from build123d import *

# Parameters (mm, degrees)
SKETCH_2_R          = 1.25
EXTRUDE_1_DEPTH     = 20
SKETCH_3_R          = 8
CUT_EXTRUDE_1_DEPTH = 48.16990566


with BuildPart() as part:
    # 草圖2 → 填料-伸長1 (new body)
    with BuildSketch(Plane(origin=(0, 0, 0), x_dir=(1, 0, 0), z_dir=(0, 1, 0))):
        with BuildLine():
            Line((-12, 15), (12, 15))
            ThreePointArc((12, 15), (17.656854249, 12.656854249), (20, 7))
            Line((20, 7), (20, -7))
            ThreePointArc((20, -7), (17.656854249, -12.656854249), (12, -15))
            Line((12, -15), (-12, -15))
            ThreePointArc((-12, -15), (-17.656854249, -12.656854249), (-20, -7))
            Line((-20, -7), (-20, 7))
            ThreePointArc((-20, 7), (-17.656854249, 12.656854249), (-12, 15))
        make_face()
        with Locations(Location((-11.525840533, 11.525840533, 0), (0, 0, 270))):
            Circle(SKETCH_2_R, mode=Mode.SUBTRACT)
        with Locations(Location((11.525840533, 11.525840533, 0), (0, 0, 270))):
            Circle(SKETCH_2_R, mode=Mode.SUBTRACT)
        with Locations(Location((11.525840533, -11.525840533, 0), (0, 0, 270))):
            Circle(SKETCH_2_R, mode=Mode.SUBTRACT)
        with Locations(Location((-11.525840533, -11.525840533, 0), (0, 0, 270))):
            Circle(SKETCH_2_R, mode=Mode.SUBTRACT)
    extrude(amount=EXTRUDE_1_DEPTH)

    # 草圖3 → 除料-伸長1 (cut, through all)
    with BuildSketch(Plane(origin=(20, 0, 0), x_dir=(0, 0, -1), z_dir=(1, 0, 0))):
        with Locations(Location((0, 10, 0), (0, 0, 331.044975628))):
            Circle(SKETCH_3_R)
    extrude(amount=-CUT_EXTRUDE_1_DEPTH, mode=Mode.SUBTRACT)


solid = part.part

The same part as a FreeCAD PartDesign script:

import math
import FreeCAD as App
import Part
import Sketcher

V = App.Vector

doc = App.newDocument("Part")
body = doc.addObject("PartDesign::Body", "Body")

# Sketch on XZ plane
sketch1 = body.newObject("Sketcher::SketchObject", "Sketch")
sketch1.AttachmentSupport = (doc.getObject("XZ_Plane"), [""])
sketch1.MapMode = "FlatFace"
sketch1.addGeometry([
    Part.LineSegment(V(12, -15, 0), V(-12, -15, 0)),  # 0
    Part.ArcOfCircle(Part.Circle(V(-12, -7, 0), V(0, 0, 1), 8), math.radians(-180), math.radians(-90)),  # 1
    Part.LineSegment(V(-20, -7, 0), V(-20, 7, 0)),  # 2
    Part.ArcOfCircle(Part.Circle(V(-12, 7, 0), V(0, 0, 1), 8), math.radians(90), math.radians(180)),  # 3
    Part.LineSegment(V(-12, 15, 0), V(12, 15, 0)),  # 4
    Part.ArcOfCircle(Part.Circle(V(12, 7, 0), V(0, 0, 1), 8), math.radians(0), math.radians(90)),  # 5
    Part.LineSegment(V(20, 7, 0), V(20, -7, 0)),  # 6
    Part.ArcOfCircle(Part.Circle(V(12, -7, 0), V(0, 0, 1), 8), math.radians(-90), math.radians(0)),  # 7
    Part.Circle(V(11.5, 11.5, 0), V(0, 0, 1), 1.2),  # 8
    Part.Circle(V(-11.5, 11.5, 0), V(0, 0, 1), 1.2),  # 9
    Part.Circle(V(11.5, -11.5, 0), V(0, 0, 1), 1.2),  # 10
    Part.Circle(V(-11.5, -11.5, 0), V(0, 0, 1), 1.2),  # 11
], False)
sketch1.addConstraint([
    Sketcher.Constraint("Tangent", 0, 2, 1, 2),
    Sketcher.Constraint("Tangent", 1, 1, 2, 1),
    Sketcher.Constraint("Tangent", 2, 2, 3, 2),
    Sketcher.Constraint("Tangent", 3, 1, 4, 1),
    Sketcher.Constraint("Tangent", 4, 2, 5, 2),
    Sketcher.Constraint("Tangent", 5, 1, 6, 1),
    Sketcher.Constraint("Tangent", 6, 2, 7, 2),
    Sketcher.Constraint("Tangent", 7, 1, 0, 1),
    Sketcher.Constraint("Horizontal", 0),
    Sketcher.Constraint("Vertical", 2),
    Sketcher.Constraint("Horizontal", 4),
    Sketcher.Constraint("Vertical", 6),
    Sketcher.Constraint("Equal", 1, 3),
    Sketcher.Constraint("Equal", 3, 5),
    Sketcher.Constraint("Equal", 5, 7),
    Sketcher.Constraint("Equal", 8, 9),
    Sketcher.Constraint("Equal", 9, 10),
    Sketcher.Constraint("Equal", 10, 11),
    Sketcher.Constraint("Symmetric", 1, 3, 5, 3, -1, 1),
    Sketcher.Constraint("Symmetric", 9, 3, 10, 3, -1, 1),
    Sketcher.Constraint("Symmetric", 8, 3, 11, 3, -1, 1),
    Sketcher.Constraint("Symmetric", 8, 3, 9, 3, -2),
    Sketcher.Constraint("Radius", 1, 8.0),
    Sketcher.Constraint("Diameter", 8, 2.5),
    Sketcher.Constraint("DistanceX", 0, 2, 0, 1, 24.0),
    Sketcher.Constraint("DistanceY", 2, 1, 2, 2, 14.0),
    Sketcher.Constraint("DistanceX", -1, 1, 8, 3, 11.525841),
    Sketcher.Constraint("DistanceY", -1, 1, 8, 3, 11.525841),
])
pad1 = body.newObject("PartDesign::Pad", "Pad")
pad1.Profile = sketch1
pad1.Length = 20
pad1.Reversed = True

# Sketch on YZ plane
sketch2 = body.newObject("Sketcher::SketchObject", "Sketch001")
sketch2.AttachmentSupport = (doc.getObject("YZ_Plane"), [""])
sketch2.MapMode = "FlatFace"
sketch2.AttachmentOffset = App.Placement(V(0, 0, 20), App.Rotation())
sketch2.addGeometry(Part.Circle(V(10, 0, 0), V(0, 0, 1), 8), False)
sketch2.addConstraint([
    Sketcher.Constraint("PointOnObject", 0, 3, -1),
    Sketcher.Constraint("Diameter", 0, 16.0),
    Sketcher.Constraint("DistanceX", -1, 1, 0, 3, 10.0),
])
pocket1 = body.newObject("PartDesign::Pocket", "Pocket")
pocket1.Profile = sketch2
pocket1.Type = "ThroughAll"

doc.recompute()
